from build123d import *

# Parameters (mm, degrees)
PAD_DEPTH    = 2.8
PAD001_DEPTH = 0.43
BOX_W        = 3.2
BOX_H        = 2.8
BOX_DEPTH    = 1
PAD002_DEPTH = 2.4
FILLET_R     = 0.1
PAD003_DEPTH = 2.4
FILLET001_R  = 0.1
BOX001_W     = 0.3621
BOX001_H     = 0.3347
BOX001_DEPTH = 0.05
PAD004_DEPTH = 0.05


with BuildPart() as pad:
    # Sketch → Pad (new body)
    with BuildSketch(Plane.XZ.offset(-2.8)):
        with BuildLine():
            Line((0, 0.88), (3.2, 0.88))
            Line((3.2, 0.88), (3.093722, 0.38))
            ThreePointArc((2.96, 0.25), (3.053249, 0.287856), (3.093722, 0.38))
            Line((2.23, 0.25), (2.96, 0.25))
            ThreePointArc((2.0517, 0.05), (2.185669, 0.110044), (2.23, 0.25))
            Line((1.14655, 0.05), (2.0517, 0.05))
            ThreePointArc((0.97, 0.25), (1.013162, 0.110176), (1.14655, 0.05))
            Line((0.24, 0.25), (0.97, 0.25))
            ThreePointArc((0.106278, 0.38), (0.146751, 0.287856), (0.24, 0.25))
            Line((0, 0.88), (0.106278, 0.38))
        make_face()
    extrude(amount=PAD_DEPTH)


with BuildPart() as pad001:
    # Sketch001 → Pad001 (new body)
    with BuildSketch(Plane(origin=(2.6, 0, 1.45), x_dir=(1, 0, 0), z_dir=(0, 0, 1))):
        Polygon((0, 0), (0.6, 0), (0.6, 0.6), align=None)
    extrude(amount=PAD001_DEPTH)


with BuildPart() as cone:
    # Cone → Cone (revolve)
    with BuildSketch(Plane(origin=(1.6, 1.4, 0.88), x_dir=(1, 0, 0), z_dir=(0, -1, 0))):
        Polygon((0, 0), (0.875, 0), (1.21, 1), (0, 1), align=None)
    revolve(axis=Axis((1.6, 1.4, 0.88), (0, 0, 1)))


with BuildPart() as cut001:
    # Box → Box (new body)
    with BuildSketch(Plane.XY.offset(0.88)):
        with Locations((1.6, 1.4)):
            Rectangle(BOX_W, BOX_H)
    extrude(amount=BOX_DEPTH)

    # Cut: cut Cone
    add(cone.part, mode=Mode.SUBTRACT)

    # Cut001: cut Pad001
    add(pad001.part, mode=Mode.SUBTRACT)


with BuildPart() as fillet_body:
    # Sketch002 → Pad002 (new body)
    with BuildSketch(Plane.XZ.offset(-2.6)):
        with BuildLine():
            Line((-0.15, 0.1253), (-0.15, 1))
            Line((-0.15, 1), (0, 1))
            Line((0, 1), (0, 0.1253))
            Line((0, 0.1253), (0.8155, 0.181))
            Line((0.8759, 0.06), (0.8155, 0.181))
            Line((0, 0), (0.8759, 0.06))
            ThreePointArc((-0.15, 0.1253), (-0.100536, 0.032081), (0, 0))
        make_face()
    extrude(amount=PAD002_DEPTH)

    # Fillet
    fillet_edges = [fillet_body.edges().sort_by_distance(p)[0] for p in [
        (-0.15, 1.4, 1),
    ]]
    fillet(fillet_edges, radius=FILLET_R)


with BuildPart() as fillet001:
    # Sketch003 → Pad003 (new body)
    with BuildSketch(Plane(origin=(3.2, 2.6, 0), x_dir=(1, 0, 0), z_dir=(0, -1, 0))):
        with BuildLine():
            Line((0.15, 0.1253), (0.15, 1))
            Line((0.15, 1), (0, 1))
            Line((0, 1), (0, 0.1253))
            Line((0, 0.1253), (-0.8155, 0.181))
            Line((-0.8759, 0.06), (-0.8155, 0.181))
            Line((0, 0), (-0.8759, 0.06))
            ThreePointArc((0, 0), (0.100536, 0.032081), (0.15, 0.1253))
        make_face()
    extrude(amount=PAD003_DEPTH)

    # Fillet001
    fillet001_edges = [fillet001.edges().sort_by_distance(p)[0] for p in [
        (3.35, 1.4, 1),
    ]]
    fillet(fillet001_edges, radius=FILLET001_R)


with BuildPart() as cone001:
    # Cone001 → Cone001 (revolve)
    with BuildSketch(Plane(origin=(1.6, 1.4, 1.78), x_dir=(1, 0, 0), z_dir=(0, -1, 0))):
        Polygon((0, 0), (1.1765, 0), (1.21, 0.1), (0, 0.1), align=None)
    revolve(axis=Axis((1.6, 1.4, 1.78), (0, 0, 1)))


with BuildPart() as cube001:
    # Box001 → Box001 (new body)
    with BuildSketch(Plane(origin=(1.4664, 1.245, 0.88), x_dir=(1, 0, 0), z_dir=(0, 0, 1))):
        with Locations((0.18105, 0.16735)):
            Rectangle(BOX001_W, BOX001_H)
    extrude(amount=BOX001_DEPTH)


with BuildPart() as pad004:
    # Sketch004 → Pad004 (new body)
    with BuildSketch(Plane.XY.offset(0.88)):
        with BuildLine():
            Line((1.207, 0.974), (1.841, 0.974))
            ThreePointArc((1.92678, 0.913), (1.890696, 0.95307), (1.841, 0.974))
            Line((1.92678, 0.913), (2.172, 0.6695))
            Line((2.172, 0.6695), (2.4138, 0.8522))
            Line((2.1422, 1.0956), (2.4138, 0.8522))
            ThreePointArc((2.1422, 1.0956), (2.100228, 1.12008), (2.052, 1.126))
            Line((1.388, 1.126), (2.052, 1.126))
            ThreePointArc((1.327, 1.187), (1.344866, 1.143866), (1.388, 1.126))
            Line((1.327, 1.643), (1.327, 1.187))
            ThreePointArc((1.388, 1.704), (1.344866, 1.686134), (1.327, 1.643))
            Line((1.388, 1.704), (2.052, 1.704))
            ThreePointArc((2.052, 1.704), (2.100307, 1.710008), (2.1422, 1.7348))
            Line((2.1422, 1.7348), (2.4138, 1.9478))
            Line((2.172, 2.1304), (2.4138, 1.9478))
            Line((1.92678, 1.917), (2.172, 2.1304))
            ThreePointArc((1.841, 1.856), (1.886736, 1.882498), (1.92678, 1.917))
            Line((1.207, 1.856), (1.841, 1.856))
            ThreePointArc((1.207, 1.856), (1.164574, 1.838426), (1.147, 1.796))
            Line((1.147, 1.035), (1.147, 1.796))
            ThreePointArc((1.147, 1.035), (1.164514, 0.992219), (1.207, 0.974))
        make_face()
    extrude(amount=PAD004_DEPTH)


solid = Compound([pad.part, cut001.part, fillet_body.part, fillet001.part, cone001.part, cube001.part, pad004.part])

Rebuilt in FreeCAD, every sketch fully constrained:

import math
import FreeCAD as App
import Part
import Sketcher
from FreeCAD import Vector
Q = App.Units.Quantity


def edges_at(feature, points):
    """Names of the edges that pass closest to the given points."""
    edges = feature.Shape.Edges
    near = lambda p: min(range(len(edges)), key=lambda i: edges[i].distToShape(Part.Vertex(*p))[0])
    return sorted({f"Edge{near(p) + 1}" for p in points})


def add_polygon(sketch, points):
    """Adds a closed chain of lines whose ends are joined by coincident constraints."""
    first, n = sketch.GeometryCount, len(points)
    for a, b in zip(points, points[1:] + points[:1]):
        sketch.addGeometry(Part.LineSegment(App.Vector(*a, 0), App.Vector(*b, 0)), False)
    for i in range(n):
        sketch.addConstraint(Sketcher.Constraint("Coincident", first + i, 2, first + (i + 1) % n, 1))

doc = App.newDocument("Part")
body = doc.addObject("PartDesign::Body", "Body")

# Sketch on XZ plane
sketch1 = body.newObject("Sketcher::SketchObject", "Sketch")
sketch1.AttachmentSupport = (doc.getObject("XZ_Plane"), [""])
sketch1.MapMode = "FlatFace"
sketch1.AttachmentOffset = App.Placement(Vector(0, 0, -2.8), App.Rotation())
sketch1.addGeometry([
    Part.LineSegment(Vector(3.2, 0.88, 0), Vector(0, 0.88, 0)),  # 0
    Part.LineSegment(Vector(0, 0.88, 0), Vector(0.106278, 0.38, 0)),  # 1
    Part.ArcOfCircle(Part.Circle(Vector(0.239999, 0.383775, 0), Vector(0, 0, 1), 0.133775), math.radians(-178.383068), math.radians(-89.999769)),  # 2
    Part.LineSegment(Vector(0.24, 0.25, 0), Vector(0.97, 0.25, 0)),  # 3
    Part.ArcOfCircle(Part.Circle(Vector(1.146551, 0.227925, 0), Vector(0, 0, 1), 0.177925), math.radians(172.873091), math.radians(269.999818)),  # 4
    Part.LineSegment(Vector(1.14655, 0.05, 0), Vector(2.0517, 0.05, 0)),  # 5
    Part.ArcOfCircle(Part.Circle(Vector(2.051699, 0.229478, 0), Vector(0, 0, 1), 0.179478), math.radians(-89.999829), math.radians(6.565821)),  # 6
    Part.LineSegment(Vector(2.23, 0.25, 0), Vector(2.96, 0.25, 0)),  # 7
    Part.ArcOfCircle(Part.Circle(Vector(2.960001, 0.383775, 0), Vector(0, 0, 1), 0.133775), math.radians(-90.000231), math.radians(-1.616932)),  # 8
    Part.LineSegment(Vector(3.093722, 0.38, 0), Vector(3.2, 0.88, 0)),  # 9
], False)
sketch1.addConstraint([
    Sketcher.Constraint("Coincident", 0, 2, 1, 1),
    Sketcher.Constraint("Coincident", 1, 2, 2, 1),
    Sketcher.Constraint("Coincident", 2, 2, 3, 1),
    Sketcher.Constraint("Coincident", 3, 2, 4, 1),
    Sketcher.Constraint("Coincident", 4, 2, 5, 1),
    Sketcher.Constraint("Coincident", 5, 2, 6, 1),
    Sketcher.Constraint("Coincident", 6, 2, 7, 1),
    Sketcher.Constraint("Coincident", 7, 2, 8, 1),
    Sketcher.Constraint("Coincident", 8, 2, 9, 1),
    Sketcher.Constraint("Coincident", 9, 2, 0, 1),
    Sketcher.Constraint("Horizontal", 0),
    Sketcher.Constraint("Horizontal", 3),
    Sketcher.Constraint("Horizontal", 5),
    Sketcher.Constraint("Horizontal", 7),
    Sketcher.Constraint("Equal", 2, 8),
    Sketcher.Constraint("PointOnObject", 0, 2, -2),
    Sketcher.Constraint("Horizontal", 2, 3, 8, 3),
    Sketcher.Constraint("Horizontal", 1, 2, 8, 2),
    Sketcher.Constraint("Vertical", 6, 3, 5, 2),
    Sketcher.Constraint("Vertical", 8, 3, 7, 2),
    Sketcher.Constraint("Equal", 3, 7),
    Sketcher.Constraint("Equal", 1, 9),
    Sketcher.Constraint("DistanceX", 0, 2, 0, 1, Q("3.2 mm")),
    Sketcher.Constraint("DistanceX", 3, 1, 3, 2, Q("0.73 mm")),
    Sketcher.Constraint("DistanceY", 1, 2, 0, 2, Q("0.5 mm")),
    Sketcher.Constraint("DistanceY", 4, 2, 3, 2, Q("0.2 mm")),
    Sketcher.Constraint("DistanceX", -1, 1, 2, 3, Q("0.239999 mm")),
    Sketcher.Constraint("DistanceY", -1, 1, 0, 2, Q("0.88 mm")),
    Sketcher.Constraint("DistanceX", -1, 1, 2, 2, Q("0.24 mm")),
    Sketcher.Constraint("DistanceY", -1, 1, 2, 2, Q("0.25 mm")),
    Sketcher.Constraint("Radius", 2, Q("0.133775 mm")),
    Sketcher.Constraint("Radius", 4, Q("0.177925 mm")),
    Sketcher.Constraint("Radius", 6, Q("0.179478 mm")),
    Sketcher.Constraint("DistanceX", 5, 1, 5, 2, Q("0.90515 mm")),
])
pad1 = body.newObject("PartDesign::Pad", "Pad")
pad1.Profile = sketch1
pad1.Length = 2.8
body2 = doc.addObject("PartDesign::Body", "Body001")

# Sketch on XY plane
sketch2 = body2.newObject("Sketcher::SketchObject", "Sketch001")
sketch2.AttachmentSupport = (doc.getObject("XY_Plane001"), [""])
sketch2.MapMode = "FlatFace"
sketch2.AttachmentOffset = App.Placement(Vector(0, 0, 1.45), App.Rotation())
add_polygon(sketch2, [(2.6, 0), (3.2, 0), (3.2, 0.6)])  # lines 0-2
sketch2.addConstraint([
    Sketcher.Constraint("Horizontal", 0),
    Sketcher.Constraint("Vertical", 1),
    Sketcher.Constraint("PointOnObject", 0, 2, -1),
    Sketcher.Constraint("Equal", 0, 1),
    Sketcher.Constraint("DistanceX", 0, 1, 0, 2, Q("0.6 mm")),
    Sketcher.Constraint("DistanceX", -1, 1, 0, 2, Q("3.2 mm")),
])
pad2 = body2.newObject("PartDesign::Pad", "Pad001")
pad2.Profile = sketch2
pad2.Length = 0.43
body3 = doc.addObject("PartDesign::Body", "Body002")

# Sketch on XZ plane
sketch3 = body3.newObject("Sketcher::SketchObject", "Sketch002")
sketch3.AttachmentSupport = (doc.getObject("XZ_Plane002"), [""])
sketch3.MapMode = "FlatFace"
sketch3.AttachmentOffset = App.Placement(Vector(0, 0, -1.4), App.Rotation())
add_polygon(sketch3, [(1.6, 0.88), (2.475, 0.88), (2.81, 1.88), (1.6, 1.88)])  # lines 0-3
sketch3.addGeometry(Part.LineSegment(Vector(1.6, 0.88, 0), Vector(1.6, 1.88, 0)), True)  # axis
sketch3.addConstraint([
    Sketcher.Constraint("Horizontal", 0),
    Sketcher.Constraint("Horizontal", 2),
    Sketcher.Constraint("Vertical", 3),
    Sketcher.Constraint("Vertical", 4),
    Sketcher.Constraint("Coincident", 4, 1, 3, 2),
    Sketcher.Constraint("Horizontal", 1, 2, 4, 2),
    Sketcher.Constraint("DistanceY", 3, 2, 3, 1, Q("1 mm")),
    Sketcher.Constraint("DistanceX", 2, 2, 2, 1, Q("1.21 mm")),
    Sketcher.Constraint("DistanceX", -1, 1, 2, 2, Q("1.6 mm")),
    Sketcher.Constraint("DistanceX", 0, 1, 0, 2, Q("0.875 mm")),
    Sketcher.Constraint("DistanceY", -1, 1, 0, 2, Q("0.88 mm")),
])
revolution = body3.newObject("PartDesign::Revolution", "Revolution")
revolution.Profile = sketch3
revolution.ReferenceAxis = (sketch3, ["Axis0"])
revolution.Angle = 360
body4 = doc.addObject("PartDesign::Body", "Body003")

# Sketch on XY plane
sketch4 = body4.newObject("Sketcher::SketchObject", "Sketch003")
sketch4.AttachmentSupport = (doc.getObject("XY_Plane003"), [""])
sketch4.MapMode = "FlatFace"
sketch4.AttachmentOffset = App.Placement(Vector(0, 0, 0.88), App.Rotation())
add_polygon(sketch4, [(0, 2.8), (0, 0), (3.2, 0), (3.2, 2.8)])  # lines 0-3
sketch4.addConstraint([
    Sketcher.Constraint("Vertical", 0),
    Sketcher.Constraint("Horizontal", 1),
    Sketcher.Constraint("Vertical", 2),
    Sketcher.Constraint("Horizontal", 3),
    Sketcher.Constraint("Coincident", 0, 2, -1, 1),
    Sketcher.Constraint("DistanceX", 1, 1, 1, 2, Q("3.2 mm")),
    Sketcher.Constraint("DistanceY", 0, 2, 0, 1, Q("2.8 mm")),
])
pad3 = body4.newObject("PartDesign::Pad", "Pad002")
pad3.Profile = sketch4
pad3.Length = 1
doc.recompute()

boolean = body4.newObject("PartDesign::Boolean", "Boolean")
boolean.Type = "Cut"
boolean.addObjects([body3])
doc.recompute()

boolean2 = body4.newObject("PartDesign::Boolean", "Boolean001")
boolean2.Type = "Cut"
boolean2.addObjects([body2])
body5 = doc.addObject("PartDesign::Body", "Body004")

# Sketch on XZ plane
sketch5 = body5.newObject("Sketcher::SketchObject", "Sketch004")
sketch5.AttachmentSupport = (doc.getObject("XZ_Plane004"), [""])
sketch5.MapMode = "FlatFace"
sketch5.AttachmentOffset = App.Placement(Vector(0, 0, -2.6), App.Rotation())
sketch5.addGeometry([
    Part.LineSegment(Vector(-0.15, 1, 0), Vector(-0.15, 0.1253, 0)),  # 0
    Part.ArcOfCircle(Part.Circle(Vector(-0.010914, 0.139369, 0), Vector(0, 0, 1), 0.139796), math.radians(-174.223888), math.radians(-85.522376)),  # 1
    Part.LineSegment(Vector(0, 0, 0), Vector(0.8759, 0.06, 0)),  # 2
    Part.LineSegment(Vector(0.8759, 0.06, 0), Vector(0.8155, 0.181, 0)),  # 3
    Part.LineSegment(Vector(0.8155, 0.181, 0), Vector(0, 0.1253, 0)),  # 4
    Part.LineSegment(Vector(0, 0.1253, 0), Vector(0, 1, 0)),  # 5
    Part.LineSegment(Vector(0, 1, 0), Vector(-0.15, 1, 0)),  # 6
], False)
sketch5.addConstraint([
    Sketcher.Constraint("Coincident", 0, 2, 1, 1),
    Sketcher.Constraint("Coincident", 1, 2, 2, 1),
    Sketcher.Constraint("Coincident", 2, 2, 3, 1),
    Sketcher.Constraint("Coincident", 3, 2, 4, 1),
    Sketcher.Constraint("Coincident", 4, 2, 5, 1),
    Sketcher.Constraint("Coincident", 5, 2, 6, 1),
    Sketcher.Constraint("Coincident", 6, 2, 0, 1),
    Sketcher.Constraint("Vertical", 0),
    Sketcher.Constraint("Vertical", 5),
    Sketcher.Constraint("Horizontal", 6),
    Sketcher.Constraint("Coincident", 1, 2, -1, 1),
    Sketcher.Constraint("PointOnObject", 4, 2, -2),
    Sketcher.Constraint("Horizontal", 0, 2, 4, 2),
    Sketcher.Constraint("DistanceY", -1, 1, 5, 2, Q("1 mm")),
    Sketcher.Constraint("DistanceX", 6, 2, 6, 1, Q("0.15 mm")),
    Sketcher.Constraint("DistanceY", -1, 1, 2, 2, Q("0.06 mm")),
    Sketcher.Constraint("DistanceY", 0, 2, 0, 1, Q("0.8747 mm")),
    Sketcher.Constraint("DistanceY", -1, 1, 3, 2, Q("0.181 mm")),
    Sketcher.Constraint("Radius", 1, Q("0.139796 mm")),
    Sketcher.Constraint("Distance", 4, Q("0.8174 mm")),
    Sketcher.Constraint("DistanceX", -1, 1, 2, 2, Q("0.8759 mm")),
])
pad4 = body5.newObject("PartDesign::Pad", "Pad003")
pad4.Profile = sketch5
pad4.Length = 2.4
doc.recompute()

fillet = body5.newObject("PartDesign::Fillet", "Fillet")
fillet.Base = (pad4, edges_at(pad4, [(-0.15, 1.4, 1)]))
fillet.Radius = 0.1
body6 = doc.addObject("PartDesign::Body", "Body005")

# Sketch on XZ plane
sketch6 = body6.newObject("Sketcher::SketchObject", "Sketch005")
sketch6.AttachmentSupport = (doc.getObject("XZ_Plane005"), [""])
sketch6.MapMode = "FlatFace"
sketch6.AttachmentOffset = App.Placement(Vector(0, 0, -2.6), App.Rotation())
sketch6.addGeometry([
    Part.LineSegment(Vector(3.35, 0.1253, 0), Vector(3.35, 1, 0)),  # 0
    Part.LineSegment(Vector(3.35, 1, 0), Vector(3.2, 1, 0)),  # 1
    Part.LineSegment(Vector(3.2, 1, 0), Vector(3.2, 0.1253, 0)),  # 2
    Part.LineSegment(Vector(3.2, 0.1253, 0), Vector(2.3845, 0.181, 0)),  # 3
    Part.LineSegment(Vector(2.3845, 0.181, 0), Vector(2.3241, 0.06, 0)),  # 4
    Part.LineSegment(Vector(2.3241, 0.06, 0), Vector(3.2, 0, 0)),  # 5
    Part.ArcOfCircle(Part.Circle(Vector(3.210914, 0.139369, 0), Vector(0, 0, 1), 0.139796), math.radians(-94.477624), math.radians(-5.776112)),  # 6
], False)
sketch6.addConstraint([
    Sketcher.Constraint("Coincident", 0, 2, 1, 1),
    Sketcher.Constraint("Coincident", 1, 2, 2, 1),
    Sketcher.Constraint("Coincident", 2, 2, 3, 1),
    Sketcher.Constraint("Coincident", 3, 2, 4, 1),
    Sketcher.Constraint("Coincident", 4, 2, 5, 1),
    Sketcher.Constraint("Coincident", 5, 2, 6, 1),
    Sketcher.Constraint("Coincident", 6, 2, 0, 1),
    Sketcher.Constraint("Vertical", 0),
    Sketcher.Constraint("Horizontal", 1),
    Sketcher.Constraint("Vertical", 2),
    Sketcher.Constraint("PointOnObject", 5, 2, -1),
    Sketcher.Constraint("Horizontal", 2, 2, 6, 2),
    Sketcher.Constraint("Vertical", 2, 2, 5, 2),
    Sketcher.Constraint("DistanceY", -1, 1, 0, 2, Q("1 mm")),
    Sketcher.Constraint("DistanceX", 1, 2, 1, 1, Q("0.15 mm")),
    Sketcher.Constraint("DistanceX", -1, 1, 1, 2, Q("3.2 mm")),
    Sketcher.Constraint("DistanceY", -1, 1, 4, 2, Q("0.06 mm")),
    Sketcher.Constraint("DistanceY", 0, 1, 0, 2, Q("0.8747 mm")),
    Sketcher.Constraint("DistanceY", -1, 1, 3, 2, Q("0.181 mm")),
    Sketcher.Constraint("Radius", 6, Q("0.139796 mm")),
    Sketcher.Constraint("Distance", 3, Q("0.8174 mm")),
    Sketcher.Constraint("DistanceX", -1, 1, 4, 2, Q("2.3241 mm")),
])
pad5 = body6.newObject("PartDesign::Pad", "Pad004")
pad5.Profile = sketch6
pad5.Length = 2.4
doc.recompute()

fillet2 = body6.newObject("PartDesign::Fillet", "Fillet001")
fillet2.Base = (pad5, edges_at(pad5, [(3.35, 1.4, 1)]))
fillet2.Radius = 0.1
body7 = doc.addObject("PartDesign::Body", "Body006")

# Sketch on XZ plane
sketch7 = body7.newObject("Sketcher::SketchObject", "Sketch006")
sketch7.AttachmentSupport = (doc.getObject("XZ_Plane006"), [""])
sketch7.MapMode = "FlatFace"
sketch7.AttachmentOffset = App.Placement(Vector(0, 0, -1.4), App.Rotation())
add_polygon(sketch7, [(1.6, 1.78), (2.7765, 1.78), (2.81, 1.88), (1.6, 1.88)])  # lines 0-3
sketch7.addGeometry(Part.LineSegment(Vector(1.6, 1.78, 0), Vector(1.6, 1.88, 0)), True)  # axis
sketch7.addConstraint([
    Sketcher.Constraint("Horizontal", 0),
    Sketcher.Constraint("Horizontal", 2),
    Sketcher.Constraint("Vertical", 3),
    Sketcher.Constraint("Vertical", 4),
    Sketcher.Constraint("Coincident", 4, 1, 3, 2),
    Sketcher.Constraint("Horizontal", 1, 2, 4, 2),
    Sketcher.Constraint("DistanceY", 3, 2, 3, 1, Q("0.1 mm")),
    Sketcher.Constraint("DistanceX", 2, 2, 2, 1, Q("1.21 mm")),
    Sketcher.Constraint("DistanceX", -1, 1, 2, 2, Q("1.6 mm")),
    Sketcher.Constraint("DistanceY", -1, 1, 0, 2, Q("1.78 mm")),
    Sketcher.Constraint("DistanceX", 0, 1, 0, 2, Q("1.1765 mm")),
])
revolution2 = body7.newObject("PartDesign::Revolution", "Revolution001")
revolution2.Profile = sketch7
revolution2.ReferenceAxis = (sketch7, ["Axis0"])
revolution2.Angle = 360
body8 = doc.addObject("PartDesign::Body", "Body007")

# Sketch on XY plane
sketch8 = body8.newObject("Sketcher::SketchObject", "Sketch007")
sketch8.AttachmentSupport = (doc.getObject("XY_Plane007"), [""])
sketch8.MapMode = "FlatFace"
sketch8.AttachmentOffset = App.Placement(Vector(0, 0, 0.88), App.Rotation())
add_polygon(sketch8, [(1.4664, 1.5797), (1.4664, 1.245), (1.8285, 1.245), (1.8285, 1.5797)])  # lines 0-3
sketch8.addConstraint([
    Sketcher.Constraint("Vertical", 0),
    Sketcher.Constraint("Horizontal", 1),
    Sketcher.Constraint("Vertical", 2),
    Sketcher.Constraint("Horizontal", 3),
    Sketcher.Constraint("DistanceX", 1, 1, 1, 2, Q("0.3621 mm")),
    Sketcher.Constraint("DistanceY", 0, 2, 0, 1, Q("0.3347 mm")),
    Sketcher.Constraint("DistanceY", -1, 1, 0, 2, Q("1.245 mm")),
    Sketcher.Constraint("DistanceX", -1, 1, 0, 2, Q("1.4664 mm")),
])
pad6 = body8.newObject("PartDesign::Pad", "Pad005")
pad6.Profile = sketch8
pad6.Length = 0.05
body9 = doc.addObject("PartDesign::Body", "Body008")

# Sketch on XY plane
sketch9 = body9.newObject("Sketcher::SketchObject", "Sketch008")
sketch9.AttachmentSupport = (doc.getObject("XY_Plane008"), [""])
sketch9.MapMode = "FlatFace"
sketch9.AttachmentOffset = App.Placement(Vector(0, 0, 0.88), App.Rotation())
sketch9.addGeometry([
    Part.LineSegment(Vector(1.207, 0.974, 0), Vector(1.841, 0.974, 0)),  # 0
    Part.ArcOfCircle(Part.Circle(Vector(1.818949, 0.852177, 0), Vector(0, 0, 1), 0.123802), math.radians(29.42526), math.radians(79.739841)),  # 1
    Part.LineSegment(Vector(1.92678, 0.913, 0), Vector(2.172, 0.6695, 0)),  # 2
    Part.LineSegment(Vector(2.172, 0.6695, 0), Vector(2.4138, 0.8522, 0)),  # 3
    Part.LineSegment(Vector(2.4138, 0.8522, 0), Vector(2.1422, 1.0956, 0)),  # 4
    Part.ArcOfCircle(Part.Circle(Vector(2.061729, 1.00585, 0), Vector(0, 0, 1), 0.120543), math.radians(48.120062), math.radians(94.629339)),  # 5
    Part.LineSegment(Vector(2.052, 1.126, 0), Vector(1.388, 1.126, 0)),  # 6
    Part.ArcOfCircle(Part.Circle(Vector(1.387998, 1.186998, 0), Vector(0, 0, 1), 0.060998), math.radians(179.998441), math.radians(270.001559)),  # 7
    Part.LineSegment(Vector(1.327, 1.187, 0), Vector(1.327, 1.643, 0)),  # 8
    Part.ArcOfCircle(Part.Circle(Vector(1.387998, 1.643002, 0), Vector(0, 0, 1), 0.060998), math.radians(89.998441), math.radians(180.001559)),  # 9
    Part.LineSegment(Vector(1.388, 1.704, 0), Vector(2.052, 1.704, 0)),  # 10
    Part.ArcOfCircle(Part.Circle(Vector(2.061728, 1.822988, 0), Vector(0, 0, 1), 0.119385), math.radians(-94.674066), math.radians(-47.619616)),  # 11
    Part.LineSegment(Vector(2.1422, 1.7348, 0), Vector(2.4138, 1.9478, 0)),  # 12
    Part.LineSegment(Vector(2.4138, 1.9478, 0), Vector(2.172, 2.1304, 0)),  # 13
    Part.LineSegment(Vector(2.172, 2.1304, 0), Vector(1.92678, 1.917, 0)),  # 14
    Part.ArcOfCircle(Part.Circle(Vector(1.721878, 2.114326, 0), Vector(0, 0, 1), 0.284468), math.radians(-65.244158), math.radians(-43.920943)),  # 15
    Part.LineSegment(Vector(1.841, 1.856, 0), Vector(1.207, 1.856, 0)),  # 16
    Part.ArcOfCircle(Part.Circle(Vector(1.207001, 1.795999, 0), Vector(0, 0, 1), 0.060001), math.radians(90.001326), math.radians(179.998674)),  # 17
    Part.LineSegment(Vector(1.147, 1.796, 0), Vector(1.147, 1.035, 0)),  # 18
    Part.ArcOfCircle(Part.Circle(Vector(1.208009, 1.035001, 0), Vector(0, 0, 1), 0.061009), math.radians(-179.99914), math.radians(-90.947876)),  # 19
], False)
sketch9.addConstraint([
    Sketcher.Constraint("Coincident", 0, 2, 1, 2),
    Sketcher.Constraint("Coincident", 1, 1, 2, 1),
    Sketcher.Constraint("Coincident", 2, 2, 3, 1),
    Sketcher.Constraint("Coincident", 3, 2, 4, 1),
    Sketcher.Constraint("Coincident", 4, 2, 5, 1),
    Sketcher.Constraint("Coincident", 5, 2, 6, 1),
    Sketcher.Constraint("Coincident", 6, 2, 7, 2),
    Sketcher.Constraint("Coincident", 7, 1, 8, 1),
    Sketcher.Constraint("Coincident", 8, 2, 9, 2),
    Sketcher.Constraint("Coincident", 9, 1, 10, 1),
    Sketcher.Constraint("Coincident", 10, 2, 11, 1),
    Sketcher.Constraint("Coincident", 11, 2, 12, 1),
    Sketcher.Constraint("Coincident", 12, 2, 13, 1),
    Sketcher.Constraint("Coincident", 13, 2, 14, 1),
    Sketcher.Constraint("Coincident", 14, 2, 15, 2),
    Sketcher.Constraint("Coincident", 15, 1, 16, 1),
    Sketcher.Constraint("Coincident", 16, 2, 17, 1),
    Sketcher.Constraint("Coincident", 17, 2, 18, 1),
    Sketcher.Constraint("Coincident", 18, 2, 19, 1),
    Sketcher.Constraint("Coincident", 19, 2, 0, 1),
    Sketcher.Constraint("Horizontal", 0),
    Sketcher.Constraint("Horizontal", 6),
    Sketcher.Constraint("Vertical", 8),
    Sketcher.Constraint("Horizontal", 10),
    Sketcher.Constraint("Horizontal", 16),
    Sketcher.Constraint("Vertical", 18),
    Sketcher.Constraint("Equal", 7, 9),
    Sketcher.Constraint("Horizontal", 9, 3, 8, 2),
    Sketcher.Constraint("Horizontal", 19, 3, 18, 2),
    Sketcher.Constraint("Vertical", 5, 3, 11, 3),
    Sketcher.Constraint("Vertical", 9, 3, 6, 2),
    Sketcher.Constraint("Vertical", 6, 2, 9, 1),
    Sketcher.Constraint("Vertical", 5, 2, 10, 2),
    Sketcher.Constraint("Vertical", 4, 2, 11, 2),
    Sketcher.Constraint("Vertical", 3, 2, 12, 2),
    Sketcher.Constraint("Vertical", 2, 2, 13, 2),
    Sketcher.Constraint("Vertical", 1, 1, 14, 2),
    Sketcher.Constraint("Vertical", 0, 2, 15, 1),
    Sketcher.Constraint("Vertical", 17, 3, 16, 2),
    Sketcher.Constraint("Vertical", 16, 2, 19, 2),
    Sketcher.Constraint("Radius", 17, Q("0.060001 mm")),
    Sketcher.Constraint("Radius", 7, Q("0.060998 mm")),
    Sketcher.Constraint("DistanceX", 0, 1, 0, 2, Q("0.634 mm")),
    Sketcher.Constraint("DistanceX", 6, 2, 6, 1, Q("0.664 mm")),
    Sketcher.Constraint("DistanceY", 8, 1, 8, 2, Q("0.456 mm")),
    Sketcher.Constraint("DistanceY", 18, 2, 18, 1, Q("0.761 mm")),
    Sketcher.Constraint("Radius", 15, Q("0.284468 mm")),
    Sketcher.Constraint("Radius", 19, Q("0.061009 mm")),
    Sketcher.Constraint("DistanceX", 17, 3, 8, 2, Q("0.119999 mm")),
    Sketcher.Constraint("DistanceX", 10, 2, 13, 2, Q("0.12 mm")),
    Sketcher.Constraint("DistanceY", 17, 2, 16, 2, Q("0.06 mm")),
    Sketcher.Constraint("Distance", 13, Q("0.303002 mm")),
    Sketcher.Constraint("DistanceX", -1, 1, 7, 3, Q("1.387998 mm")),
    Sketcher.Constraint("DistanceY", -1, 1, 7, 3, Q("1.186998 mm")),
    Sketcher.Constraint("DistanceY", -1, 1, 9, 3, Q("1.643002 mm")),
    Sketcher.Constraint("DistanceY", -1, 1, 17, 3, Q("1.795999 mm")),
    Sketcher.Constraint("DistanceY", -1, 1, 1, 1, Q("0.913 mm")),
    Sketcher.Constraint("DistanceY", -1, 1, 14, 2, Q("1.917 mm")),
    Sketcher.Constraint("Radius", 1, Q("0.123802 mm")),
    Sketcher.Constraint("Radius", 5, Q("0.120543 mm")),
    Sketcher.Constraint("Radius", 11, Q("0.119385 mm")),
    Sketcher.Constraint("DistanceY", 11, 2, 12, 2, Q("0.213 mm")),
    Sketcher.Constraint("DistanceY", -1, 1, 2, 2, Q("0.6695 mm")),
    Sketcher.Constraint("DistanceX", -1, 1, 3, 2, Q("2.4138 mm")),
    Sketcher.Constraint("DistanceY", -1, 1, 3, 2, Q("0.8522 mm")),
    Sketcher.Constraint("DistanceX", -1, 1, 4, 2, Q("2.1422 mm")),
    Sketcher.Constraint("DistanceY", -1, 1, 4, 2, Q("1.0956 mm")),
    Sketcher.Constraint("DistanceX", 15, 3, 14, 2, Q("0.204902 mm")),
])
pad7 = body9.newObject("PartDesign::Pad", "Pad006")
pad7.Profile = sketch9
pad7.Length = 0.05

doc.recompute()
